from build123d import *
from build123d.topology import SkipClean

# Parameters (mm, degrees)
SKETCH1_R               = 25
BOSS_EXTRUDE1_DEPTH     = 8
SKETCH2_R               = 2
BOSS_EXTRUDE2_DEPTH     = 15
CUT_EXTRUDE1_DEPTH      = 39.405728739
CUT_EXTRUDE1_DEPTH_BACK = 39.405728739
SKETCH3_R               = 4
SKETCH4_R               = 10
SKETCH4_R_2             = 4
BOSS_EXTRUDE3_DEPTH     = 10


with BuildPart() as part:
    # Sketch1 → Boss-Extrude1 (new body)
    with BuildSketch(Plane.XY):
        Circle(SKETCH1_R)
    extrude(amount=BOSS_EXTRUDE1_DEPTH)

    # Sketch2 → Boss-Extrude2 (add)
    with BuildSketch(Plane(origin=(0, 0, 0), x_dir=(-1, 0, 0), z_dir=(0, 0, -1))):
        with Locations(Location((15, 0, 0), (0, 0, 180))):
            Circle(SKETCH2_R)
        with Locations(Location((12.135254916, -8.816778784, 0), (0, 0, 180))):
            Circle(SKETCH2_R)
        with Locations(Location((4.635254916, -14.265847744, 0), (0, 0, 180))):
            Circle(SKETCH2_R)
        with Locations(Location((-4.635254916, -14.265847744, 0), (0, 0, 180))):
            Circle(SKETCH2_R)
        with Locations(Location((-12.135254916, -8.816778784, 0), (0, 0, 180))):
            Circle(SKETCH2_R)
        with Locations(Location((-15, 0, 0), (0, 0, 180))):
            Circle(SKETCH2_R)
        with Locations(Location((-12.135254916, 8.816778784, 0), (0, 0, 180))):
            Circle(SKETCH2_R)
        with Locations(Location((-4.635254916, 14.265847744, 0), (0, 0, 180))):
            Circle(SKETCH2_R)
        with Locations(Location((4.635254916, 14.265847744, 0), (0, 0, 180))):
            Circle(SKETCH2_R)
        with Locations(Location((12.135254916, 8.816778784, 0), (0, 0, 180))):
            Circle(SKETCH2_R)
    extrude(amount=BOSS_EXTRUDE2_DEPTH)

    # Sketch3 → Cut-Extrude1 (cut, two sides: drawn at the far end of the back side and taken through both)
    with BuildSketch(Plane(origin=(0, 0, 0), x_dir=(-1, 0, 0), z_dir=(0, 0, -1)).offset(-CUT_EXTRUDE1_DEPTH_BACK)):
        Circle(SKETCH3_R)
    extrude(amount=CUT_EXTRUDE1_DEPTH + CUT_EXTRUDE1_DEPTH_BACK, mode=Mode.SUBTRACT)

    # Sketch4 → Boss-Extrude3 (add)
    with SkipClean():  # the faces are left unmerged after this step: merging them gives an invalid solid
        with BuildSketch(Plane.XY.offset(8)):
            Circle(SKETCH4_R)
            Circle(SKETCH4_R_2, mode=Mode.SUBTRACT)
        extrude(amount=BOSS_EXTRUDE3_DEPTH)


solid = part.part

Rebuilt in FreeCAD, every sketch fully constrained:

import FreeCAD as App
import Part
import Sketcher

V = App.Vector

doc = App.newDocument("Part")
body = doc.addObject("PartDesign::Body", "Body")

# Sketch on XY plane
sketch1 = doc.addObject("Sketcher::SketchObject", "Sketch")
body.addObject(sketch1)
sketch1.AttachmentSupport = (doc.XY_Plane, [""])
sketch1.MapMode = "FlatFace"
sketch1.addGeometry(Part.Circle(V(0, 0, 0), V(0, 0, 1), 25), False)
sketch1.addConstraint(Sketcher.Constraint("Coincident", 0, 3, -1, 1))
sketch1.addConstraint(Sketcher.Constraint("Diameter", 0, 50.0))
pad1 = doc.addObject("PartDesign::Pad", "Pad")
body.addObject(pad1)
pad1.Profile = sketch1
pad1.Length = 8

# Sketch on XY plane
sketch2 = doc.addObject("Sketcher::SketchObject", "Sketch001")
body.addObject(sketch2)
sketch2.AttachmentSupport = (doc.XY_Plane, [""])
sketch2.MapMode = "FlatFace"
sketch2.addGeometry(Part.Circle(V(-15, 0, 0), V(0, 0, 1), 2), False)
sketch2.addGeometry(Part.Circle(V(-12.135255, -8.816779, 0), V(0, 0, 1), 2), False)
sketch2.addGeometry(Part.Circle(V(-4.635255, -14.265848, 0), V(0, 0, 1), 2), False)
sketch2.addGeometry(Part.Circle(V(4.635255, -14.265848, 0), V(0, 0, 1), 2), False)
sketch2.addGeometry(Part.Circle(V(12.135255, -8.816779, 0), V(0, 0, 1), 2), False)
sketch2.addGeometry(Part.Circle(V(15, 0, 0), V(0, 0, 1), 2), False)
sketch2.addGeometry(Part.Circle(V(12.135255, 8.816779, 0), V(0, 0, 1), 2), False)
sketch2.addGeometry(Part.Circle(V(4.635255, 14.265848, 0), V(0, 0, 1), 2), False)
sketch2.addGeometry(Part.Circle(V(-4.635255, 14.265848, 0), V(0, 0, 1), 2), False)
sketch2.addGeometry(Part.Circle(V(-12.135255, 8.816779, 0), V(0, 0, 1), 2), False)
sketch2.addConstraint(Sketcher.Constraint("Equal", 0, 1))
sketch2.addConstraint(Sketcher.Constraint("Equal", 1, 2))
sketch2.addConstraint(Sketcher.Constraint("Equal", 2, 3))
sketch2.addConstraint(Sketcher.Constraint("Equal", 3, 4))
sketch2.addConstraint(Sketcher.Constraint("Equal", 4, 5))
sketch2.addConstraint(Sketcher.Constraint("Equal", 5, 6))
sketch2.addConstraint(Sketcher.Constraint("Equal", 6, 7))
sketch2.addConstraint(Sketcher.Constraint("Equal", 7, 8))
sketch2.addConstraint(Sketcher.Constraint("Equal", 8, 9))
sketch2.addConstraint(Sketcher.Constraint("Symmetric", 0, 3, 5, 3, -1, 1))
sketch2.addConstraint(Sketcher.Constraint("Symmetric", 1, 3, 6, 3, -1, 1))
sketch2.addConstraint(Sketcher.Constraint("Symmetric", 2, 3, 7, 3, -1, 1))
sketch2.addConstraint(Sketcher.Constraint("Symmetric", 3, 3, 8, 3, -1, 1))
sketch2.addConstraint(Sketcher.Constraint("Symmetric", 4, 3, 9, 3, -1, 1))
sketch2.addConstraint(Sketcher.Constraint("Symmetric", 2, 3, 3, 3, -2))
sketch2.addConstraint(Sketcher.Constraint("Symmetric", 1, 3, 4, 3, -2))
sketch2.addConstraint(Sketcher.Constraint("PointOnObject", 0, 3, -1))
sketch2.addConstraint(Sketcher.Constraint("Diameter", 0, 4.0))
sketch2.addConstraint(Sketcher.Constraint("DistanceX", 0, 3, -1, 1, 15.0))
sketch2.addConstraint(Sketcher.Constraint("DistanceX", 1, 3, 2, 3, 7.5))
sketch2.addConstraint(Sketcher.Constraint("DistanceY", 1, 3, -1, 1, 8.816779))
sketch2.addConstraint(Sketcher.Constraint("DistanceY", 2, 3, 1, 3, 5.449069))
sketch2.addConstraint(Sketcher.Constraint("DistanceX", 2, 3, 3, 3, 9.27051))
pad2 = doc.addObject("PartDesign::Pad", "Pad001")
body.addObject(pad2)
pad2.Profile = sketch2
pad2.Length = 15
pad2.Reversed = True

# Sketch on XY plane
sketch3 = doc.addObject("Sketcher::SketchObject", "Sketch002")
body.addObject(sketch3)
sketch3.AttachmentSupport = (doc.XY_Plane, [""])
sketch3.MapMode = "FlatFace"
sketch3.addGeometry(Part.Circle(V(0, 0, 0), V(0, 0, 1), 4), False)
sketch3.addConstraint(Sketcher.Constraint("Coincident", 0, 3, -1, 1))
sketch3.addConstraint(Sketcher.Constraint("Diameter", 0, 8.0))
pocket1 = doc.addObject("PartDesign::Pocket", "Pocket")
body.addObject(pocket1)
pocket1.Profile = sketch3
pocket1.Type = "ThroughAll"
pocket1.Midplane = True

# Sketch on XY plane
sketch4 = doc.addObject("Sketcher::SketchObject", "Sketch003")
body.addObject(sketch4)
sketch4.AttachmentSupport = (doc.XY_Plane, [""])
sketch4.MapMode = "FlatFace"
sketch4.AttachmentOffset = App.Placement(V(0, 0, 8), App.Rotation())
sketch4.addGeometry(Part.Circle(V(0, 0, 0), V(0, 0, 1), 10), False)
sketch4.addGeometry(Part.Circle(V(0, 0, 0), V(0, 0, 1), 4), False)
sketch4.addConstraint(Sketcher.Constraint("Coincident", 0, 3, -1, 1))
sketch4.addConstraint(Sketcher.Constraint("Coincident", 1, 3, -1, 1))
sketch4.addConstraint(Sketcher.Constraint("Diameter", 0, 20.0))
sketch4.addConstraint(Sketcher.Constraint("Diameter", 1, 8.0))
pad3 = doc.addObject("PartDesign::Pad", "Pad002")
body.addObject(pad3)
pad3.Profile = sketch4
pad3.Length = 10

doc.recompute()
